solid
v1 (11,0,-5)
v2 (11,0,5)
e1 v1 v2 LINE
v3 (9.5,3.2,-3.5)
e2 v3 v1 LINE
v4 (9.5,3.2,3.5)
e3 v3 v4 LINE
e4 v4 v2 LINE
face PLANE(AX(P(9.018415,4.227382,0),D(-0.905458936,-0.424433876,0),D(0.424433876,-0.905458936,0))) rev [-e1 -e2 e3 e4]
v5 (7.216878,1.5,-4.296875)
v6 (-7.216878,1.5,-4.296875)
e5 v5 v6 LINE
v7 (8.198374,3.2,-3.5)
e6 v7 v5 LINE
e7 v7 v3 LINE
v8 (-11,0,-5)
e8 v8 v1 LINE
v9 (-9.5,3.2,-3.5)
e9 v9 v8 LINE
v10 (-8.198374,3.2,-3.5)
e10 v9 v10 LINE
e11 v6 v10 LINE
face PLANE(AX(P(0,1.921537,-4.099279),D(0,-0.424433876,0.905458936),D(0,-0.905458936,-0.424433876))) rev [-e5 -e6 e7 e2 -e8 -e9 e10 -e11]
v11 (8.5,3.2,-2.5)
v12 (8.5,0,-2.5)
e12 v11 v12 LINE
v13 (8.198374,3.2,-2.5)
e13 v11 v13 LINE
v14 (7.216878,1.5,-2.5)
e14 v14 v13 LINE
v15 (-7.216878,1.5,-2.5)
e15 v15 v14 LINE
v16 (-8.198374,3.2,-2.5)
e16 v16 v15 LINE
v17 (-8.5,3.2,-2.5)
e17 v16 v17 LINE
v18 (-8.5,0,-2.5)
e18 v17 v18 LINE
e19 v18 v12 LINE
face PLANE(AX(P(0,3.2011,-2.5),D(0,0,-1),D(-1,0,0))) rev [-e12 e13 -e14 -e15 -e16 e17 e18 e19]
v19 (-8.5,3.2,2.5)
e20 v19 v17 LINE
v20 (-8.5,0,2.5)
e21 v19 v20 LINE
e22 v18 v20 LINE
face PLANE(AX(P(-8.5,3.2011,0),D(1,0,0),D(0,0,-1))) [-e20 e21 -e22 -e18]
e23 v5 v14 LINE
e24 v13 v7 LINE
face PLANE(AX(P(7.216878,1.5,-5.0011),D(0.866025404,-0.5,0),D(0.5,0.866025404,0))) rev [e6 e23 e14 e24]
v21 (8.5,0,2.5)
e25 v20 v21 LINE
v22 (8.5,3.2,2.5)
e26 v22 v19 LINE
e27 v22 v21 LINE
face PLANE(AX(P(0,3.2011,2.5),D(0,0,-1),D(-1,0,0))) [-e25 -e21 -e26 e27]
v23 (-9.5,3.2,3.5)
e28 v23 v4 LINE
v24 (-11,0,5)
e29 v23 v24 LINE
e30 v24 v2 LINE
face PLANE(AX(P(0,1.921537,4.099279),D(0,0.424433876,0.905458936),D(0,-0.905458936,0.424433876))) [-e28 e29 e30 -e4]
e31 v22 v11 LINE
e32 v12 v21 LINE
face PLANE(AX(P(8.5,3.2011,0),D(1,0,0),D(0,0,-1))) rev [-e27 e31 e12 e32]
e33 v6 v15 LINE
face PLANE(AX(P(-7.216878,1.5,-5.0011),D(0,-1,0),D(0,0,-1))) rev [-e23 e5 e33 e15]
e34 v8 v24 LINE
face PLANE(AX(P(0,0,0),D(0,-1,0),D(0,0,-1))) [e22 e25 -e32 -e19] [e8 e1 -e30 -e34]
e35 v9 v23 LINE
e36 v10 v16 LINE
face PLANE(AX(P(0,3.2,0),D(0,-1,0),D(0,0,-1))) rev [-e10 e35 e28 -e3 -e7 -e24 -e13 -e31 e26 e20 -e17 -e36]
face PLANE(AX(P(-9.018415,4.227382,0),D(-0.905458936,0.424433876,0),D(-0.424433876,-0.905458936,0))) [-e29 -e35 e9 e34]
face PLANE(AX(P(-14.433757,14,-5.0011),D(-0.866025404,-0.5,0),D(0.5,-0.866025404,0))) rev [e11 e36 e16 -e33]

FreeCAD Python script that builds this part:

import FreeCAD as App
import Part
import Sketcher

V = App.Vector
Q = App.Units.Quantity

doc = App.newDocument("Part")
body = doc.addObject("PartDesign::Body", "Body")

# Sketch on XZ plane
sketch1 = body.newObject("Sketcher::SketchObject", "Sketch")
sketch1.AttachmentSupport = (doc.getObject("XZ_Plane"), [""])
sketch1.MapMode = "FlatFace"
sketch1.AttachmentOffset = App.Placement(V(0, 0, -3.2), App.Rotation())
sketch1.addGeometry(Part.LineSegment(V(-10, -4, 0), V(-10, 4, 0)), False)
sketch1.addGeometry(Part.LineSegment(V(-10, 4, 0), V(10, 4, 0)), False)
sketch1.addGeometry(Part.LineSegment(V(10, 4, 0), V(10, -4, 0)), False)
sketch1.addGeometry(Part.LineSegment(V(10, -4, 0), V(-10, -4, 0)), False)
sketch1.addConstraint(Sketcher.Constraint("Coincident", 0, 2, 1, 1))
sketch1.addConstraint(Sketcher.Constraint("Coincident", 1, 2, 2, 1))
sketch1.addConstraint(Sketcher.Constraint("Coincident", 2, 2, 3, 1))
sketch1.addConstraint(Sketcher.Constraint("Coincident", 3, 2, 0, 1))
sketch1.addConstraint(Sketcher.Constraint("Vertical", 0))
sketch1.addConstraint(Sketcher.Constraint("Horizontal", 1))
sketch1.addConstraint(Sketcher.Constraint("Vertical", 2))
sketch1.addConstraint(Sketcher.Constraint("Horizontal", 3))
sketch1.addConstraint(Sketcher.Constraint("Symmetric", 0, 2, 2, 2, -1, 1))
sketch1.addConstraint(Sketcher.Constraint("DistanceX", 1, 1, 1, 2, 19.0))
sketch1.addConstraint(Sketcher.Constraint("DistanceY", 0, 1, 0, 2, 7.0))

# Sketch on XZ plane
sketch2 = body.newObject("Sketcher::SketchObject", "Sketch001")
sketch2.AttachmentSupport = (doc.getObject("XZ_Plane"), [""])
sketch2.MapMode = "FlatFace"
sketch2.addGeometry(Part.LineSegment(V(-11, -5, 0), V(-11, 5, 0)), False)
sketch2.addGeometry(Part.LineSegment(V(-11, 5, 0), V(11, 5, 0)), False)
sketch2.addGeometry(Part.LineSegment(V(11, 5, 0), V(11, -5, 0)), False)
sketch2.addGeometry(Part.LineSegment(V(11, -5, 0), V(-11, -5, 0)), False)
sketch2.addConstraint(Sketcher.Constraint("Coincident", 0, 2, 1, 1))
sketch2.addConstraint(Sketcher.Constraint("Coincident", 1, 2, 2, 1))
sketch2.addConstraint(Sketcher.Constraint("Coincident", 2, 2, 3, 1))
sketch2.addConstraint(Sketcher.Constraint("Coincident", 3, 2, 0, 1))
sketch2.addConstraint(Sketcher.Constraint("Vertical", 0))
sketch2.addConstraint(Sketcher.Constraint("Horizontal", 1))
sketch2.addConstraint(Sketcher.Constraint("Vertical", 2))
sketch2.addConstraint(Sketcher.Constraint("Horizontal", 3))
sketch2.addConstraint(Sketcher.Constraint("Symmetric", 0, 2, 2, 2, -1, 1))
sketch2.addConstraint(Sketcher.Constraint("DistanceX", 1, 1, 1, 2, 22.0))
sketch2.addConstraint(Sketcher.Constraint("DistanceY", 0, 1, 0, 2, 10.0))

additiveloft = body.newObject("PartDesign::AdditiveLoft", "AdditiveLoft")
additiveloft.Profile = sketch1
additiveloft.Sections = [sketch2]

# Sketch on XZ plane
sketch3 = body.newObject("Sketcher::SketchObject", "Sketch002")
sketch3.AttachmentSupport = (doc.getObject("XZ_Plane"), [""])
sketch3.MapMode = "FlatFace"
sketch3.addGeometry(Part.LineSegment(V(-8, -2, 0), V(-8, 2, 0)), False)
sketch3.addGeometry(Part.LineSegment(V(-8, 2, 0), V(8, 2, 0)), False)
sketch3.addGeometry(Part.LineSegment(V(8, 2, 0), V(8, -2, 0)), False)
sketch3.addGeometry(Part.LineSegment(V(8, -2, 0), V(-8, -2, 0)), False)
sketch3.addConstraint(Sketcher.Constraint("Coincident", 0, 2, 1, 1))
sketch3.addConstraint(Sketcher.Constraint("Coincident", 1, 2, 2, 1))
sketch3.addConstraint(Sketcher.Constraint("Coincident", 2, 2, 3, 1))
sketch3.addConstraint(Sketcher.Constraint("Coincident", 3, 2, 0, 1))
sketch3.addConstraint(Sketcher.Constraint("Vertical", 0))
sketch3.addConstraint(Sketcher.Constraint("Horizontal", 1))
sketch3.addConstraint(Sketcher.Constraint("Vertical", 2))
sketch3.addConstraint(Sketcher.Constraint("Horizontal", 3))
sketch3.addConstraint(Sketcher.Constraint("Symmetric", 0, 2, 2, 2, -1, 1))
sketch3.addConstraint(Sketcher.Constraint("DistanceX", 1, 1, 1, 2, 17.0))
sketch3.addConstraint(Sketcher.Constraint("DistanceY", 0, 1, 0, 2, 5.0))
pocket1 = body.newObject("PartDesign::Pocket", "Pocket")
pocket1.Profile = sketch3
pocket1.Type = "UpToFirst"

# Sketch on XY plane
sketch4 = body.newObject("Sketcher::SketchObject", "Sketch003")
sketch4.AttachmentSupport = (doc.getObject("XY_Plane"), [""])
sketch4.MapMode = "FlatFace"
sketch4.addGeometry(Part.LineSegment(V(7, 2, 0), V(14, 14, 0)), False)
sketch4.addGeometry(Part.LineSegment(V(14, 14, 0), V(7, 26, 0)), False)
sketch4.addGeometry(Part.LineSegment(V(7, 26, 0), V(-7, 26, 0)), False)
sketch4.addGeometry(Part.LineSegment(V(-7, 26, 0), V(-14, 14, 0)), False)
sketch4.addGeometry(Part.LineSegment(V(-14, 14, 0), V(-7, 2, 0)), False)
sketch4.addGeometry(Part.LineSegment(V(-7, 2, 0), V(7, 2, 0)), False)
sketch4.addConstraint(Sketcher.Constraint("Coincident", 0, 2, 1, 1))
sketch4.addConstraint(Sketcher.Constraint("Coincident", 1, 2, 2, 1))
sketch4.addConstraint(Sketcher.Constraint("Coincident", 2, 2, 3, 1))
sketch4.addConstraint(Sketcher.Constraint("Coincident", 3, 2, 4, 1))
sketch4.addConstraint(Sketcher.Constraint("Coincident", 4, 2, 5, 1))
sketch4.addConstraint(Sketcher.Constraint("Coincident", 5, 2, 0, 1))
sketch4.addConstraint(Sketcher.Constraint("Horizontal", 2))
sketch4.addConstraint(Sketcher.Constraint("Horizontal", 5))
sketch4.addConstraint(Sketcher.Constraint("Symmetric", 0, 2, 3, 2, -2))
sketch4.addConstraint(Sketcher.Constraint("Parallel", 0, 3))
sketch4.addConstraint(Sketcher.Constraint("Parallel", 1, 4))
sketch4.addConstraint(Sketcher.Constraint("Vertical", 2, 2, 4, 2))
sketch4.addConstraint(Sketcher.Constraint("Vertical", 1, 2, 5, 2))
sketch4.addConstraint(Sketcher.Constraint("Angle", 0, Q("60 deg")))
sketch4.addConstraint(Sketcher.Constraint("DistanceY", -1, 1, 0, 2, 14.0))
sketch4.addConstraint(Sketcher.Constraint("DistanceY", 4, 2, 2, 2, 25.0))
sketch4.addConstraint(Sketcher.Constraint("DistanceX", 2, 2, 2, 1, 14.433757))
pocket2 = body.newObject("PartDesign::Pocket", "Pocket001")
pocket2.Profile = sketch4
pocket2.Length = 4.296875

doc.recompute()
